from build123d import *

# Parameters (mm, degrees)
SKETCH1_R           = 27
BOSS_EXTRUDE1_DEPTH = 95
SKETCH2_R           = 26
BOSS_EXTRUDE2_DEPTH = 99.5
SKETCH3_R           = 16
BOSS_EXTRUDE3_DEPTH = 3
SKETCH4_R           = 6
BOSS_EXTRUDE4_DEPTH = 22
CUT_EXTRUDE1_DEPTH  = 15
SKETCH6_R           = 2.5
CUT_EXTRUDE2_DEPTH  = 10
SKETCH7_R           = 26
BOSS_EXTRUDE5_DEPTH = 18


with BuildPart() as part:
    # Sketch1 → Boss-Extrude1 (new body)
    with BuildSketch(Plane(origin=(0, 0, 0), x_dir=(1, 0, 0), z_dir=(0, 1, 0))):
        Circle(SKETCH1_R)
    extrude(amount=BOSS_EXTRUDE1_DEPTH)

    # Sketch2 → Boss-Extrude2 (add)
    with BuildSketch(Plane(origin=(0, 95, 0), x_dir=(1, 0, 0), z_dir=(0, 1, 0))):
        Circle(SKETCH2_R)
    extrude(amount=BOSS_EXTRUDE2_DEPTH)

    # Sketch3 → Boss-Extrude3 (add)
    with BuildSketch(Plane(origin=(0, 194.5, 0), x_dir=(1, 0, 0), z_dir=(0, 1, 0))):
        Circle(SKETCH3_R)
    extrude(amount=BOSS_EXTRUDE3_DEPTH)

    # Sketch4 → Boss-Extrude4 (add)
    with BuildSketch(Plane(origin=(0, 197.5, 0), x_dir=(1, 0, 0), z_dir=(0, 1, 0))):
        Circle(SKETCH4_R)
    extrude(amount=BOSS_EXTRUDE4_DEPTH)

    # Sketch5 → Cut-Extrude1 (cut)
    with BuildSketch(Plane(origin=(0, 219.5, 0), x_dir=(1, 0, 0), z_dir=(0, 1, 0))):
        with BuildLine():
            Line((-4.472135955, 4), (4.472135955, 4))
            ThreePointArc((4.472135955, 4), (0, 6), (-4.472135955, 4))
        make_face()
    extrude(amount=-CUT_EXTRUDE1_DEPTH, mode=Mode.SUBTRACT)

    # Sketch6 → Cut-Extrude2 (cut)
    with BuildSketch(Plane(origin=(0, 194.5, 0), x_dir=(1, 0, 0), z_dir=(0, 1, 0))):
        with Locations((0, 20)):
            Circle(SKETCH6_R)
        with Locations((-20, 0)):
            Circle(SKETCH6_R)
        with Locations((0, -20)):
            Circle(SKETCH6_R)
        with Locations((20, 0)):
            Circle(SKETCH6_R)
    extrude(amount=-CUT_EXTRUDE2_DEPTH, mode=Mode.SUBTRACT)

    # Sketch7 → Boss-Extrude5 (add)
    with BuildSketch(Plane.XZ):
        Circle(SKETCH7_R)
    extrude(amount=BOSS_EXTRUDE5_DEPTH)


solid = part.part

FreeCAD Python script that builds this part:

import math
import FreeCAD as App
import Part
import Sketcher

V = App.Vector

doc = App.newDocument("Part")
body = doc.addObject("PartDesign::Body", "Body")

sketch1 = body.newObject("Sketcher::SketchObject", "Sketch")
sketch1.AttachmentSupport = (doc.getObject("XZ_Plane"), [""])
sketch1.MapMode = "FlatFace"
sketch1.addGeometry(Part.Circle(V(0, 0, 0), V(0, 0, 1), 27), False)
sketch1.addConstraint([
    Sketcher.Constraint("Coincident", 0, 3, -1, 1),
    Sketcher.Constraint("Diameter", 0, 54.0),
])
pad1 = body.newObject("PartDesign::Pad", "Pad")
pad1.Profile = sketch1
pad1.Length = 95
pad1.Reversed = True

sketch2 = body.newObject("Sketcher::SketchObject", "Sketch001")
sketch2.AttachmentSupport = (doc.getObject("XZ_Plane"), [""])
sketch2.MapMode = "FlatFace"
sketch2.AttachmentOffset = App.Placement(V(0, 0, -95), App.Rotation())
sketch2.addGeometry(Part.Circle(V(0, 0, 0), V(0, 0, 1), 26), False)
sketch2.addConstraint([
    Sketcher.Constraint("Coincident", 0, 3, -1, 1),
    Sketcher.Constraint("Diameter", 0, 52.0),
])
pad2 = body.newObject("PartDesign::Pad", "Pad001")
pad2.Profile = sketch2
pad2.Length = 99.5
pad2.Reversed = True

sketch3 = body.newObject("Sketcher::SketchObject", "Sketch002")
sketch3.AttachmentSupport = (doc.getObject("XZ_Plane"), [""])
sketch3.MapMode = "FlatFace"
sketch3.AttachmentOffset = App.Placement(V(0, 0, -194.5), App.Rotation())
sketch3.addGeometry(Part.Circle(V(0, 0, 0), V(0, 0, 1), 16), False)
sketch3.addConstraint([
    Sketcher.Constraint("Coincident", 0, 3, -1, 1),
    Sketcher.Constraint("Diameter", 0, 32.0),
])
pad3 = body.newObject("PartDesign::Pad", "Pad002")
pad3.Profile = sketch3
pad3.Length = 3
pad3.Reversed = True

sketch4 = body.newObject("Sketcher::SketchObject", "Sketch003")
sketch4.AttachmentSupport = (doc.getObject("XZ_Plane"), [""])
sketch4.MapMode = "FlatFace"
sketch4.AttachmentOffset = App.Placement(V(0, 0, -197.5), App.Rotation())
sketch4.addGeometry(Part.Circle(V(0, 0, 0), V(0, 0, 1), 6), False)
sketch4.addConstraint([
    Sketcher.Constraint("Coincident", 0, 3, -1, 1),
    Sketcher.Constraint("Diameter", 0, 12.0),
])
pad4 = body.newObject("PartDesign::Pad", "Pad003")
pad4.Profile = sketch4
pad4.Length = 22
pad4.Reversed = True

sketch5 = body.newObject("Sketcher::SketchObject", "Sketch004")
sketch5.AttachmentSupport = (doc.getObject("XZ_Plane"), [""])
sketch5.MapMode = "FlatFace"
sketch5.AttachmentOffset = App.Placement(V(0, 0, -219.5), App.Rotation())
sketch5.addGeometry([
    Part.LineSegment(V(-4.472136, -4, 0), V(4.472136, -4, 0)),
    Part.ArcOfCircle(Part.Circle(V(0, 0, 0), V(0, 0, 1), 6), math.radians(-138.189685), math.radians(-41.810315)),
], False)
sketch5.addConstraint([
    Sketcher.Constraint("Coincident", 0, 1, 1, 1),
    Sketcher.Constraint("Coincident", 1, 2, 0, 2),
    Sketcher.Constraint("Horizontal", 0),
    Sketcher.Constraint("Coincident", 1, 3, -1, 1),
    Sketcher.Constraint("Radius", 1, 6.0),
    Sketcher.Constraint("DistanceY", 0, 1, -1, 1, 4.0),
])
pocket1 = body.newObject("PartDesign::Pocket", "Pocket")
pocket1.Profile = sketch5
pocket1.Length = 15
pocket1.Reversed = True

sketch6 = body.newObject("Sketcher::SketchObject", "Sketch005")
sketch6.AttachmentSupport = (doc.getObject("XZ_Plane"), [""])
sketch6.MapMode = "FlatFace"
sketch6.AttachmentOffset = App.Placement(V(0, 0, -194.5), App.Rotation())
sketch6.addGeometry([
    Part.Circle(V(0, -20, 0), V(0, 0, 1), 2.5),
    Part.Circle(V(-20, 0, 0), V(0, 0, 1), 2.5),
    Part.Circle(V(0, 20, 0), V(0, 0, 1), 2.5),
    Part.Circle(V(20, 0, 0), V(0, 0, 1), 2.5),
], False)
sketch6.addConstraint([
    Sketcher.Constraint("Equal", 0, 1),
    Sketcher.Constraint("Equal", 1, 2),
    Sketcher.Constraint("Equal", 2, 3),
    Sketcher.Constraint("Symmetric", 0, 3, 2, 3, -1, 1),
    Sketcher.Constraint("Symmetric", 1, 3, 3, 3, -1, 1),
    Sketcher.Constraint("PointOnObject", 0, 3, -2),
    Sketcher.Constraint("PointOnObject", 1, 3, -1),
    Sketcher.Constraint("Diameter", 0, 5.0),
    Sketcher.Constraint("DistanceY", 0, 3, -1, 1, 20.0),
    Sketcher.Constraint("DistanceX", 1, 3, -1, 1, 20.0),
])
pocket2 = body.newObject("PartDesign::Pocket", "Pocket001")
pocket2.Profile = sketch6
pocket2.Length = 10
pocket2.Reversed = True

sketch7 = body.newObject("Sketcher::SketchObject", "Sketch006")
sketch7.AttachmentSupport = (doc.getObject("XZ_Plane"), [""])
sketch7.MapMode = "FlatFace"
sketch7.addGeometry(Part.Circle(V(0, 0, 0), V(0, 0, 1), 26), False)
sketch7.addConstraint([
    Sketcher.Constraint("Coincident", 0, 3, -1, 1),
    Sketcher.Constraint("Diameter", 0, 52.0),
])
pad5 = body.newObject("PartDesign::Pad", "Pad004")
pad5.Profile = sketch7
pad5.Length = 18

doc.recompute()
